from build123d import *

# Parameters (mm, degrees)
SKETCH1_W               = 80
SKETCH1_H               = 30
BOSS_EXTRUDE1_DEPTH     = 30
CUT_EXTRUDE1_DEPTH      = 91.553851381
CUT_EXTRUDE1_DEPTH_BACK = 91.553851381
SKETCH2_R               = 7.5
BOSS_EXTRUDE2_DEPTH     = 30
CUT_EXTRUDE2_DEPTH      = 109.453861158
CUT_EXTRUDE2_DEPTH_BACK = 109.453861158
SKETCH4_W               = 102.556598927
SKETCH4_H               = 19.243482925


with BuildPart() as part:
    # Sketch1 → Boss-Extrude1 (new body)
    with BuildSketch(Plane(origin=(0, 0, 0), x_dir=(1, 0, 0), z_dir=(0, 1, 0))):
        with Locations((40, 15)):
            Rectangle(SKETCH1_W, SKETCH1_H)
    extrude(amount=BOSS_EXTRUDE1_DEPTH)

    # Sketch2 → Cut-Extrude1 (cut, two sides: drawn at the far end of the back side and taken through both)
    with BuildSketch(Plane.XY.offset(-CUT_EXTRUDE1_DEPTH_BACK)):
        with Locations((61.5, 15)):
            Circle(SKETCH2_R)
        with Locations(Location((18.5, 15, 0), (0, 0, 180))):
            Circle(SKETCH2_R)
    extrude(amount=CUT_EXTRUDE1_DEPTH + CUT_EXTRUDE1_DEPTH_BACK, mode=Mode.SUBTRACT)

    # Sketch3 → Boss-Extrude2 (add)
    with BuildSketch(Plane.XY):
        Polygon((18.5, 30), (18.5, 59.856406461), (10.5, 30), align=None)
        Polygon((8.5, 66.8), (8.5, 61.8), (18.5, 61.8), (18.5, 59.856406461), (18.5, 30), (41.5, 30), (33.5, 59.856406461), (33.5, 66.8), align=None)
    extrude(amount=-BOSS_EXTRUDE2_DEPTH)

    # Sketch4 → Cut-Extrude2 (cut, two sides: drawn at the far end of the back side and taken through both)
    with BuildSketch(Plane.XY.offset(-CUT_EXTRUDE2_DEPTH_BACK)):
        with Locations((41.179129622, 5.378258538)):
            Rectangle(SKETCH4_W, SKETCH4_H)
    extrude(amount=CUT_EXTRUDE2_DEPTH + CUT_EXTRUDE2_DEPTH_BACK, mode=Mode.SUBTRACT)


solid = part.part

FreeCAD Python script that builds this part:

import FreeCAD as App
import Part
import Sketcher
Q = App.Units.Quantity


def add_polygon(sketch, points):
    """Adds a closed chain of lines whose ends are joined by coincident constraints."""
    first, n = sketch.GeometryCount, len(points)
    for a, b in zip(points, points[1:] + points[:1]):
        sketch.addGeometry(Part.LineSegment(App.Vector(*a, 0), App.Vector(*b, 0)), False)
    for i in range(n):
        sketch.addConstraint(Sketcher.Constraint("Coincident", first + i, 2, first + (i + 1) % n, 1))

doc = App.newDocument("Part")
body = doc.addObject("PartDesign::Body", "Body")

# Sketch on XZ plane
sketch1 = body.newObject("Sketcher::SketchObject", "Sketch")
sketch1.AttachmentSupport = (doc.getObject("XZ_Plane"), [""])
sketch1.MapMode = "FlatFace"
add_polygon(sketch1, [(0, -30), (0, 0), (80, 0), (80, -30)])  # lines 0-3
sketch1.addConstraint([
    Sketcher.Constraint("Vertical", 0),
    Sketcher.Constraint("Horizontal", 1),
    Sketcher.Constraint("Vertical", 2),
    Sketcher.Constraint("Horizontal", 3),
    Sketcher.Constraint("Coincident", 0, 2, -1, 1),
    Sketcher.Constraint("DistanceX", 1, 1, 1, 2, 80.0),
    Sketcher.Constraint("DistanceY", 0, 1, 0, 2, 30.0),
])
pad1 = body.newObject("PartDesign::Pad", "Pad")
pad1.Profile = sketch1
pad1.Length = 30
pad1.Reversed = True

# Sketch on XY plane
sketch2 = body.newObject("Sketcher::SketchObject", "Sketch001")
sketch2.AttachmentSupport = (doc.getObject("XY_Plane"), [""])
sketch2.MapMode = "FlatFace"
sketch2.addGeometry([
    Part.Circle(App.Vector(61.5, 15, 0), App.Vector(0, 0, 1), 7.5),
    Part.Circle(App.Vector(18.5, 15, 0), App.Vector(0, 0, 1), 7.5),
], False)
sketch2.addConstraint([
    Sketcher.Constraint("Equal", 0, 1),
    Sketcher.Constraint("Horizontal", 0, 3, 1, 3),
    Sketcher.Constraint("Diameter", 0, 15.0),
    Sketcher.Constraint("DistanceY", -1, 1, 0, 3, 15.0),
    Sketcher.Constraint("DistanceX", 1, 3, 0, 3, 43.0),
    Sketcher.Constraint("DistanceX", -1, 1, 0, 3, 61.5),
])
pocket1 = body.newObject("PartDesign::Pocket", "Pocket")
pocket1.Profile = sketch2
pocket1.Type = "ThroughAll"
pocket1.Midplane = True

# Sketch on XY plane
sketch3 = body.newObject("Sketcher::SketchObject", "Sketch002")
sketch3.AttachmentSupport = (doc.getObject("XY_Plane"), [""])
sketch3.MapMode = "FlatFace"
add_polygon(sketch3, [(18.5, 59.856406), (10.5, 30), (41.5, 30), (33.5, 59.856406), (33.5, 66.8), (8.5, 66.8), (8.5, 61.8), (18.5, 61.8)])  # lines 0-7
sketch3.addConstraint([
    Sketcher.Constraint("Horizontal", 1),
    Sketcher.Constraint("Vertical", 3),
    Sketcher.Constraint("Horizontal", 4),
    Sketcher.Constraint("Vertical", 5),
    Sketcher.Constraint("Horizontal", 6),
    Sketcher.Constraint("Vertical", 7),
    Sketcher.Constraint("Horizontal", 2, 2, 7, 2),
    Sketcher.Constraint("Equal", 0, 2),
    Sketcher.Constraint("DistanceX", 1, 1, 1, 2, 31.0),
    Sketcher.Constraint("DistanceX", 4, 2, 4, 1, 25.0),
    Sketcher.Constraint("DistanceX", 6, 1, 6, 2, 10.0),
    Sketcher.Constraint("DistanceY", 5, 2, 5, 1, 5.0),
    Sketcher.Constraint("Angle", 0, Q("-105 deg")),
    Sketcher.Constraint("DistanceY", -1, 1, 0, 2, 30.0),
    Sketcher.Constraint("DistanceX", -1, 1, 0, 2, 10.5),
    Sketcher.Constraint("DistanceY", -1, 1, 3, 2, 66.8),
])
pad2 = body.newObject("PartDesign::Pad", "Pad001")
pad2.Profile = sketch3
pad2.Length = 30
pad2.Reversed = True

# Sketch on XY plane
sketch4 = body.newObject("Sketcher::SketchObject", "Sketch003")
sketch4.AttachmentSupport = (doc.getObject("XY_Plane"), [""])
sketch4.MapMode = "FlatFace"
add_polygon(sketch4, [(-10.09917, 15), (-10.09917, -4.243483), (92.457429, -4.243483), (92.457429, 15)])  # lines 0-3
sketch4.addConstraint([
    Sketcher.Constraint("Vertical", 0),
    Sketcher.Constraint("Horizontal", 1),
    Sketcher.Constraint("Vertical", 2),
    Sketcher.Constraint("Horizontal", 3),
    Sketcher.Constraint("DistanceY", -1, 1, 2, 2, 15.0),
    Sketcher.Constraint("DistanceX", 1, 1, 1, 2, 102.556599),
    Sketcher.Constraint("DistanceY", 0, 2, 0, 1, 19.243483),
    Sketcher.Constraint("DistanceX", 0, 2, -1, 1, 10.09917),
])
pocket2 = body.newObject("PartDesign::Pocket", "Pocket001")
pocket2.Profile = sketch4
pocket2.Type = "ThroughAll"
pocket2.Midplane = True

doc.recompute()
